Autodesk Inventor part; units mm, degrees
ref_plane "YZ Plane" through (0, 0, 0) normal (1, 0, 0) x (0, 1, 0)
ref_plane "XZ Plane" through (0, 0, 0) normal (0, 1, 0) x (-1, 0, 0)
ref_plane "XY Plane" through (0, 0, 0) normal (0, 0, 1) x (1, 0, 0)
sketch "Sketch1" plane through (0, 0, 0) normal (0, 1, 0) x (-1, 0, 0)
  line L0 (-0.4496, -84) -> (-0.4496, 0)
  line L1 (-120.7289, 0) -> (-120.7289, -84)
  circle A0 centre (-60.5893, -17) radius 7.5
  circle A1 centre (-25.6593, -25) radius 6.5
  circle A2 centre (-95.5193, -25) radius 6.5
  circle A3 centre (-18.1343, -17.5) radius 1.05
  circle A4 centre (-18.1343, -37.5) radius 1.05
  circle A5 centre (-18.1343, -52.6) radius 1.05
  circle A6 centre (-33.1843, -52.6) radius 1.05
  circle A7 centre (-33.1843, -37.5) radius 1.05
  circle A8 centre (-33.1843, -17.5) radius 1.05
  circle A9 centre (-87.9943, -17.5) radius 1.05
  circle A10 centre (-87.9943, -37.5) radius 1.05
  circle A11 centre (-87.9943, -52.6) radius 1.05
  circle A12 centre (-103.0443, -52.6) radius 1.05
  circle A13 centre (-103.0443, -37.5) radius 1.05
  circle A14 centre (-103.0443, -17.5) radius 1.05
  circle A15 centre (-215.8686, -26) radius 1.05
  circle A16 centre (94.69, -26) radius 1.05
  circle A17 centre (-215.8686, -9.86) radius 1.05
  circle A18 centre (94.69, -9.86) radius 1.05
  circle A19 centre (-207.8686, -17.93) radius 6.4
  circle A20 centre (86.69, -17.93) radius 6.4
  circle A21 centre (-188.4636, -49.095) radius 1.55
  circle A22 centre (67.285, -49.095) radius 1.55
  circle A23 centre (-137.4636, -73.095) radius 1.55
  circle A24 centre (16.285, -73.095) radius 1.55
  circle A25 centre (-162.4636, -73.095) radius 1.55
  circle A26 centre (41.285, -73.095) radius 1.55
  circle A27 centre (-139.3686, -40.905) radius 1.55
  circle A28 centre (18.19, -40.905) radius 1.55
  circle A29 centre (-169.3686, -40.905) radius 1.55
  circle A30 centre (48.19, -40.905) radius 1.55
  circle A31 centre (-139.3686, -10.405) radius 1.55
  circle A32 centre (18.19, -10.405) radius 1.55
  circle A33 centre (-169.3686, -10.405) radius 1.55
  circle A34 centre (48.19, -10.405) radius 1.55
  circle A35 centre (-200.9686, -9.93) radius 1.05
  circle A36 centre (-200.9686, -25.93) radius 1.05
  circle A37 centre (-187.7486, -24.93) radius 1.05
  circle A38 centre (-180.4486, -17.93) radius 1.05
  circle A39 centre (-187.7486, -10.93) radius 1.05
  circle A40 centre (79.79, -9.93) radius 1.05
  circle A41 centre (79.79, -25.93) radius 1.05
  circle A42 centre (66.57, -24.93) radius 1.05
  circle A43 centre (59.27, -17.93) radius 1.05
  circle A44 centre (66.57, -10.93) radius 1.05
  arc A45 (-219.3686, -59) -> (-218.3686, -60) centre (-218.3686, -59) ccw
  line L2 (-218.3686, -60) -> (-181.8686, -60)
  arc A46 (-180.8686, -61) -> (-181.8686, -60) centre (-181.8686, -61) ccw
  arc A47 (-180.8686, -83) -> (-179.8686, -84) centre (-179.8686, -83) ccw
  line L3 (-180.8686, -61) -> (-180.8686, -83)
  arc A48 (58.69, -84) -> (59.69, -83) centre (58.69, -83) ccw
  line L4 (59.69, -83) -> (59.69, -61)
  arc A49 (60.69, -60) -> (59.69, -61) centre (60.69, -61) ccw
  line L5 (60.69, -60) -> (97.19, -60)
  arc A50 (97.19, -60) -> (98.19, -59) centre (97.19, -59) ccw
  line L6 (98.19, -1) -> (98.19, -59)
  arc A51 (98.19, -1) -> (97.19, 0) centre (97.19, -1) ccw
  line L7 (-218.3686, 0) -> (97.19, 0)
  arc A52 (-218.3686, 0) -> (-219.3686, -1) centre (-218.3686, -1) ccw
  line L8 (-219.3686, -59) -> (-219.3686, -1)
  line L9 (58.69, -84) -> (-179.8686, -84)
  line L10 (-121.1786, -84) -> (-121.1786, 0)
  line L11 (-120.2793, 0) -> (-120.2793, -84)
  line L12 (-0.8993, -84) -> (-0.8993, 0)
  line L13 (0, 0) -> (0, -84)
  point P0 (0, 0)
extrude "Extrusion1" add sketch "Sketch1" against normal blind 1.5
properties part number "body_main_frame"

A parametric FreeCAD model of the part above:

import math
import FreeCAD as App
import Part
import Sketcher

doc = App.newDocument("Part")
params = doc.addObject("Spreadsheet::Sheet", "Params")
for row, (alias, value) in enumerate([
    ("sketch1_diameter", "13 mm"),
    ("sketch1_diameter2", "15 mm"),
    ("sketch1_radius", "1 mm"),
    ("sketch1_diameter3", "2.1 mm"),
    ("sketch1_diameter4", "3.1 mm"),
    ("pad1_length", "1.5 mm"),
], start=1):
    params.set(f"A{row}", alias)
    params.set(f"B{row}", "=" + value)
    params.setAlias(f"B{row}", alias)

body = doc.addObject("PartDesign::Body", "Body")

# Sketch on XZ plane
sketch1 = body.newObject("Sketcher::SketchObject", "Sketch")
sketch1.AttachmentSupport = (doc.getObject("XZ_Plane"), [""])
sketch1.MapMode = "FlatFace"
sketch1.addGeometry([
    Part.ArcOfCircle(Part.Circle(App.Vector(-58.7, -83, 0), App.Vector(0, 0, 1), 1), math.radians(180), math.radians(270)),  # 0
    Part.LineSegment(App.Vector(-59.7, -83, 0), App.Vector(-59.7, -61, 0)),  # 1
    Part.ArcOfCircle(Part.Circle(App.Vector(-60.7, -61, 0), App.Vector(0, 0, 1), 1), math.radians(0), math.radians(90)),  # 2
    Part.LineSegment(App.Vector(-60.7, -60, 0), App.Vector(-97.2, -60, 0)),  # 3
    Part.ArcOfCircle(Part.Circle(App.Vector(-97.2, -59, 0), App.Vector(0, 0, 1), 1), math.radians(180), math.radians(270)),  # 4
    Part.LineSegment(App.Vector(-98.2, -59, 0), App.Vector(-98.2, -1, 0)),  # 5
    Part.ArcOfCircle(Part.Circle(App.Vector(-97.2, -1, 0), App.Vector(0, 0, 1), 1), math.radians(90), math.radians(180)),  # 6
    Part.LineSegment(App.Vector(-97.2, 0, 0), App.Vector(218.4, 0, 0)),  # 7
    Part.ArcOfCircle(Part.Circle(App.Vector(218.4, -1, 0), App.Vector(0, 0, 1), 1), math.radians(0), math.radians(90)),  # 8
    Part.LineSegment(App.Vector(219.4, -1, 0), App.Vector(219.4, -59, 0)),  # 9
    Part.ArcOfCircle(Part.Circle(App.Vector(218.4, -59, 0), App.Vector(0, 0, 1), 1), math.radians(-90), math.radians(0)),  # 10
    Part.LineSegment(App.Vector(218.4, -60, 0), App.Vector(181.9, -60, 0)),  # 11
    Part.ArcOfCircle(Part.Circle(App.Vector(181.9, -61, 0), App.Vector(0, 0, 1), 1), math.radians(90), math.radians(180)),  # 12
    Part.LineSegment(App.Vector(180.9, -61, 0), App.Vector(180.9, -83, 0)),  # 13
    Part.ArcOfCircle(Part.Circle(App.Vector(179.9, -83, 0), App.Vector(0, 0, 1), 1), math.radians(-90), math.radians(0)),  # 14
    Part.LineSegment(App.Vector(179.9, -84, 0), App.Vector(-58.7, -84, 0)),  # 15
    Part.Circle(App.Vector(18.1, -17.5, 0), App.Vector(0, 0, 1), 1.1),  # 16
    Part.Circle(App.Vector(103, -52.6, 0), App.Vector(0, 0, 1), 1.1),  # 17
    Part.Circle(App.Vector(88, -52.6, 0), App.Vector(0, 0, 1), 1.1),  # 18
    Part.Circle(App.Vector(33.2, -52.6, 0), App.Vector(0, 0, 1), 1.1),  # 19
    Part.Circle(App.Vector(18.1, -52.6, 0), App.Vector(0, 0, 1), 1.1),  # 20
    Part.Circle(App.Vector(103, -37.5, 0), App.Vector(0, 0, 1), 1.1),  # 21
    Part.Circle(App.Vector(88, -37.5, 0), App.Vector(0, 0, 1), 1.1),  # 22
    Part.Circle(App.Vector(95.5, -25, 0), App.Vector(0, 0, 1), 6.5),  # 23
    Part.Circle(App.Vector(103, -17.5, 0), App.Vector(0, 0, 1), 1.1),  # 24
    Part.Circle(App.Vector(88, -17.5, 0), App.Vector(0, 0, 1), 1.1),  # 25
    Part.Circle(App.Vector(33.2, -37.5, 0), App.Vector(0, 0, 1), 1.1),  # 26
    Part.Circle(App.Vector(18.1, -37.5, 0), App.Vector(0, 0, 1), 1.1),  # 27
    Part.Circle(App.Vector(25.7, -25, 0), App.Vector(0, 0, 1), 6.5),  # 28
    Part.Circle(App.Vector(60.6, -17, 0), App.Vector(0, 0, 1), 7.5),  # 29
    Part.Circle(App.Vector(33.2, -17.5, 0), App.Vector(0, 0, 1), 1.1),  # 30
    Part.Circle(App.Vector(-94.7, -9.9, 0), App.Vector(0, 0, 1), 1.1),  # 31
    Part.Circle(App.Vector(-16.3, -73.1, 0), App.Vector(0, 0, 1), 1.6),  # 32
    Part.Circle(App.Vector(-41.3, -73.1, 0), App.Vector(0, 0, 1), 1.6),  # 33
    Part.Circle(App.Vector(-67.3, -49.1, 0), App.Vector(0, 0, 1), 1.6),  # 34
    Part.Circle(App.Vector(-18.2, -40.9, 0), App.Vector(0, 0, 1), 1.6),  # 35
    Part.Circle(App.Vector(-48.2, -40.9, 0), App.Vector(0, 0, 1), 1.6),  # 36
    Part.Circle(App.Vector(-66.6, -24.9, 0), App.Vector(0, 0, 1), 1.1),  # 37
    Part.Circle(App.Vector(-79.8, -25.9, 0), App.Vector(0, 0, 1), 1.1),  # 38
    Part.Circle(App.Vector(-94.7, -26, 0), App.Vector(0, 0, 1), 1.1),  # 39
    Part.Circle(App.Vector(-18.2, -10.4, 0), App.Vector(0, 0, 1), 1.6),  # 40
    Part.Circle(App.Vector(-59.3, -17.9, 0), App.Vector(0, 0, 1), 1.1),  # 41
    Part.Circle(App.Vector(-86.7, -17.9, 0), App.Vector(0, 0, 1), 6.4),  # 42
    Part.Circle(App.Vector(-66.6, -10.9, 0), App.Vector(0, 0, 1), 1.1),  # 43
    Part.Circle(App.Vector(-48.2, -10.4, 0), App.Vector(0, 0, 1), 1.6),  # 44
    Part.Circle(App.Vector(-79.8, -9.9, 0), App.Vector(0, 0, 1), 1.1),  # 45
    Part.Circle(App.Vector(139.4, -10.4, 0), App.Vector(0, 0, 1), 1.6),  # 46
    Part.Circle(App.Vector(162.5, -73.1, 0), App.Vector(0, 0, 1), 1.6),  # 47
    Part.Circle(App.Vector(137.5, -73.1, 0), App.Vector(0, 0, 1), 1.6),  # 48
    Part.Circle(App.Vector(188.5, -49.1, 0), App.Vector(0, 0, 1), 1.6),  # 49
    Part.Circle(App.Vector(169.4, -40.9, 0), App.Vector(0, 0, 1), 1.6),  # 50
    Part.Circle(App.Vector(215.9, -26, 0), App.Vector(0, 0, 1), 1.1),  # 51
    Part.Circle(App.Vector(201, -25.9, 0), App.Vector(0, 0, 1), 1.1),  # 52
    Part.Circle(App.Vector(187.7, -24.9, 0), App.Vector(0, 0, 1), 1.1),  # 53
    Part.Circle(App.Vector(139.4, -40.9, 0), App.Vector(0, 0, 1), 1.6),  # 54
    Part.Circle(App.Vector(207.9, -17.9, 0), App.Vector(0, 0, 1), 6.4),  # 55
    Part.Circle(App.Vector(180.4, -17.9, 0), App.Vector(0, 0, 1), 1.1),  # 56
    Part.Circle(App.Vector(187.7, -10.9, 0), App.Vector(0, 0, 1), 1.1),  # 57
    Part.Circle(App.Vector(215.9, -9.9, 0), App.Vector(0, 0, 1), 1.1),  # 58
    Part.Circle(App.Vector(201, -9.9, 0), App.Vector(0, 0, 1), 1.1),  # 59
    Part.Circle(App.Vector(169.4, -10.4, 0), App.Vector(0, 0, 1), 1.6),  # 60
], False)
sketch1.addConstraint([
    Sketcher.Constraint("Tangent", 0, 1, 1, 1),
    Sketcher.Constraint("Tangent", 1, 2, 2, 1),
    Sketcher.Constraint("Tangent", 2, 2, 3, 1),
    Sketcher.Constraint("Tangent", 3, 2, 4, 2),
    Sketcher.Constraint("Tangent", 4, 1, 5, 1),
    Sketcher.Constraint("Tangent", 5, 2, 6, 2),
    Sketcher.Constraint("Tangent", 6, 1, 7, 1),
    Sketcher.Constraint("Tangent", 7, 2, 8, 2),
    Sketcher.Constraint("Tangent", 8, 1, 9, 1),
    Sketcher.Constraint("Tangent", 9, 2, 10, 2),
    Sketcher.Constraint("Tangent", 10, 1, 11, 1),
    Sketcher.Constraint("Tangent", 11, 2, 12, 1),
    Sketcher.Constraint("Tangent", 12, 2, 13, 1),
    Sketcher.Constraint("Tangent", 13, 2, 14, 2),
    Sketcher.Constraint("Tangent", 14, 1, 15, 1),
    Sketcher.Constraint("Tangent", 15, 2, 0, 2),
    Sketcher.Constraint("Vertical", 1),
    Sketcher.Constraint("Horizontal", 3),
    Sketcher.Constraint("Vertical", 5),
    Sketcher.Constraint("Horizontal", 7),
    Sketcher.Constraint("Vertical", 9),
    Sketcher.Constraint("Horizontal", 11),
    Sketcher.Constraint("Vertical", 13),
    Sketcher.Constraint("Horizontal", 15),
    Sketcher.Constraint("Equal", 0, 2),
    Sketcher.Constraint("Equal", 2, 4),
    Sketcher.Constraint("Equal", 4, 6),
    Sketcher.Constraint("Equal", 6, 8),
    Sketcher.Constraint("Equal", 8, 10),
    Sketcher.Constraint("Equal", 10, 12),
    Sketcher.Constraint("Equal", 12, 14),
    Sketcher.Constraint("Equal", 16, 17),
    Sketcher.Constraint("Equal", 17, 18),
    Sketcher.Constraint("Equal", 18, 19),
    Sketcher.Constraint("Equal", 19, 20),
    Sketcher.Constraint("Equal", 20, 21),
    Sketcher.Constraint("Equal", 21, 22),
    Sketcher.Constraint("Equal", 22, 24),
    Sketcher.Constraint("Equal", 24, 25),
    Sketcher.Constraint("Equal", 25, 26),
    Sketcher.Constraint("Equal", 26, 27),
    Sketcher.Constraint("Equal", 23, 28),
    Sketcher.Constraint("Equal", 27, 30),
    Sketcher.Constraint("Equal", 30, 31),
    Sketcher.Constraint("Equal", 32, 33),
    Sketcher.Constraint("Equal", 33, 34),
    Sketcher.Constraint("Equal", 34, 35),
    Sketcher.Constraint("Equal", 35, 36),
    Sketcher.Constraint("Equal", 31, 37),
    Sketcher.Constraint("Equal", 37, 38),
    Sketcher.Constraint("Equal", 38, 39),
    Sketcher.Constraint("Equal", 36, 40),
    Sketcher.Constraint("Equal", 39, 41),
    Sketcher.Constraint("Equal", 41, 43),
    Sketcher.Constraint("Equal", 40, 44),
    Sketcher.Constraint("Equal", 43, 45),
    Sketcher.Constraint("Equal", 44, 46),
    Sketcher.Constraint("Equal", 46, 47),
    Sketcher.Constraint("Equal", 47, 48),
    Sketcher.Constraint("Equal", 48, 49),
    Sketcher.Constraint("Equal", 49, 50),
    Sketcher.Constraint("Equal", 45, 51),
    Sketcher.Constraint("Equal", 51, 52),
    Sketcher.Constraint("Equal", 52, 53),
    Sketcher.Constraint("Equal", 50, 54),
    Sketcher.Constraint("Equal", 42, 55),
    Sketcher.Constraint("Equal", 53, 56),
    Sketcher.Constraint("Equal", 56, 57),
    Sketcher.Constraint("Equal", 57, 58),
    Sketcher.Constraint("Equal", 58, 59),
    Sketcher.Constraint("Equal", 54, 60),
    Sketcher.Constraint("PointOnObject", 6, 1, -1),
    Sketcher.Constraint("Horizontal", 4, 3, 10, 3),
    Sketcher.Constraint("Horizontal", 17, 3, 18, 3),
    Sketcher.Constraint("Horizontal", 18, 3, 19, 3),
    Sketcher.Constraint("Horizontal", 19, 3, 20, 3),
    Sketcher.Constraint("Horizontal", 21, 3, 22, 3),
    Sketcher.Constraint("Horizontal", 16, 3, 24, 3),
    Sketcher.Constraint("Horizontal", 24, 3, 25, 3),
    Sketcher.Constraint("Horizontal", 22, 3, 26, 3),
    Sketcher.Constraint("Horizontal", 26, 3, 27, 3),
    Sketcher.Constraint("Horizontal", 23, 3, 28, 3),
    Sketcher.Constraint("Horizontal", 25, 3, 30, 3),
    Sketcher.Constraint("Horizontal", 32, 3, 33, 3),
    Sketcher.Constraint("Horizontal", 35, 3, 36, 3),
    Sketcher.Constraint("Horizontal", 41, 3, 42, 3),
    Sketcher.Constraint("Horizontal", 40, 3, 44, 3),
    Sketcher.Constraint("Horizontal", 44, 3, 46, 3),
    Sketcher.Constraint("Horizontal", 33, 3, 47, 3),
    Sketcher.Constraint("Horizontal", 47, 3, 48, 3),
    Sketcher.Constraint("Horizontal", 34, 3, 49, 3),
    Sketcher.Constraint("Horizontal", 36, 3, 50, 3),
    Sketcher.Constraint("Horizontal", 39, 3, 51, 3),
    Sketcher.Constraint("Horizontal", 38, 3, 52, 3),
    Sketcher.Constraint("Horizontal", 37, 3, 53, 3),
    Sketcher.Constraint("Horizontal", 50, 3, 54, 3),
    Sketcher.Constraint("Horizontal", 42, 3, 55, 3),
    Sketcher.Constraint("Horizontal", 55, 3, 56, 3),
    Sketcher.Constraint("Horizontal", 43, 3, 57, 3),
    Sketcher.Constraint("Horizontal", 31, 3, 58, 3),
    Sketcher.Constraint("Horizontal", 45, 3, 59, 3),
    Sketcher.Constraint("Horizontal", 46, 3, 60, 3),
    Sketcher.Constraint("Vertical", 16, 3, 20, 3),
    Sketcher.Constraint("Vertical", 17, 3, 21, 3),
    Sketcher.Constraint("Vertical", 18, 3, 22, 3),
    Sketcher.Constraint("Vertical", 21, 3, 24, 3),
    Sketcher.Constraint("Vertical", 22, 3, 25, 3),
    Sketcher.Constraint("Vertical", 19, 3, 26, 3),
    Sketcher.Constraint("Vertical", 20, 3, 27, 3),
    Sketcher.Constraint("Vertical", 26, 3, 30, 3),
    Sketcher.Constraint("Vertical", 31, 3, 39, 3),
    Sketcher.Constraint("Vertical", 35, 3, 40, 3),
    Sketcher.Constraint("Vertical", 37, 3, 43, 3),
    Sketcher.Constraint("Vertical", 36, 3, 44, 3),
    Sketcher.Constraint("Vertical", 38, 3, 45, 3),
    Sketcher.Constraint("Vertical", 46, 3, 54, 3),
    Sketcher.Constraint("Vertical", 53, 3, 57, 3),
    Sketcher.Constraint("Vertical", 51, 3, 58, 3),
    Sketcher.Constraint("Vertical", 52, 3, 59, 3),
    Sketcher.Constraint("Vertical", 50, 3, 60, 3),
    Sketcher.Constraint("Equal", 3, 11),
    Sketcher.Constraint("Diameter", 23, 13.0),
    Sketcher.Constraint("Diameter", 29, 15.0),
    Sketcher.Constraint("Radius", 0, 1.0),
    Sketcher.Constraint("Diameter", 16, 2.1),
    Sketcher.Constraint("Diameter", 32, 3.1),
    Sketcher.Constraint("Diameter", 42, 12.8),
    Sketcher.Constraint("DistanceY", 1, 1, 1, 2, 22.0),
    Sketcher.Constraint("DistanceY", 5, 1, 5, 2, 58.0),
    Sketcher.Constraint("DistanceX", 3, 2, 3, 1, 36.5),
    Sketcher.Constraint("DistanceY", 23, 3, -1, 1, 25.0),
    Sketcher.Constraint("DistanceY", 29, 3, -1, 1, 17.0),
    Sketcher.Constraint("DistanceY", 39, 3, -1, 1, 26.0),
    Sketcher.Constraint("DistanceY", 16, 3, -1, 1, 17.5),
    Sketcher.Constraint("DistanceY", 17, 3, -1, 1, 52.6),
    Sketcher.Constraint("DistanceY", 21, 3, -1, 1, 37.5),
    Sketcher.Constraint("DistanceX", 0, 3, -1, 1, 58.69),
    Sketcher.Constraint("DistanceX", 31, 3, -1, 1, 94.69),
    Sketcher.Constraint("DistanceY", 31, 3, -1, 1, 9.86),
    Sketcher.Constraint("DistanceX", 35, 3, -1, 1, 18.19),
    Sketcher.Constraint("DistanceX", 36, 3, -1, 1, 48.19),
    Sketcher.Constraint("DistanceX", 37, 3, -1, 1, 66.57),
    Sketcher.Constraint("DistanceY", 37, 3, -1, 1, 24.93),
    Sketcher.Constraint("DistanceX", 38, 3, -1, 1, 79.79),
    Sketcher.Constraint("DistanceY", 38, 3, -1, 1, 25.93),
    Sketcher.Constraint("DistanceX", 41, 3, -1, 1, 59.27),
    Sketcher.Constraint("DistanceY", 41, 3, -1, 1, 17.93),
    Sketcher.Constraint("DistanceX", 42, 3, -1, 1, 86.69),
    Sketcher.Constraint("DistanceY", 43, 3, -1, 1, 10.93),
    Sketcher.Constraint("DistanceY", 45, 3, -1, 1, 9.93),
    Sketcher.Constraint("DistanceX", 7, 1, 7, 2, 315.5586),
    Sketcher.Constraint("DistanceX", 32, 3, -1, 1, 16.285),
    Sketcher.Constraint("DistanceY", 32, 3, -1, 1, 73.095),
    Sketcher.Constraint("DistanceX", 33, 3, -1, 1, 41.285),
    Sketcher.Constraint("DistanceX", 34, 3, -1, 1, 67.285),
    Sketcher.Constraint("DistanceY", 34, 3, -1, 1, 49.095),
    Sketcher.Constraint("DistanceY", 35, 3, -1, 1, 40.905),
    Sketcher.Constraint("DistanceY", 40, 3, -1, 1, 10.405),
    Sketcher.Constraint("DistanceX", -1, 1, 16, 3, 18.1343),
    Sketcher.Constraint("DistanceX", -1, 1, 17, 3, 103.0443),
    Sketcher.Constraint("DistanceX", -1, 1, 18, 3, 87.9943),
    Sketcher.Constraint("DistanceX", -1, 1, 19, 3, 33.1843),
    Sketcher.Constraint("DistanceX", -1, 1, 23, 3, 95.5193),
    Sketcher.Constraint("DistanceX", -1, 1, 28, 3, 25.6593),
    Sketcher.Constraint("DistanceX", -1, 1, 29, 3, 60.5893),
    Sketcher.Constraint("DistanceX", -1, 1, 46, 3, 139.3686),
    Sketcher.Constraint("DistanceX", -1, 1, 47, 3, 162.4636),
    Sketcher.Constraint("DistanceX", -1, 1, 48, 3, 137.4636),
    Sketcher.Constraint("DistanceX", -1, 1, 49, 3, 188.4636),
    Sketcher.Constraint("DistanceX", -1, 1, 50, 3, 169.3686),
    Sketcher.Constraint("DistanceX", -1, 1, 51, 3, 215.8686),
    Sketcher.Constraint("DistanceX", -1, 1, 52, 3, 200.9686),
    Sketcher.Constraint("DistanceX", -1, 1, 53, 3, 187.7486),
    Sketcher.Constraint("DistanceX", -1, 1, 55, 3, 207.8686),
    Sketcher.Constraint("DistanceX", -1, 1, 56, 3, 180.4486),
])
sketch1.setExpression("Constraints[121]", "Params.sketch1_diameter")
sketch1.setExpression("Constraints[122]", "Params.sketch1_diameter2")
sketch1.setExpression("Constraints[123]", "Params.sketch1_radius")
sketch1.setExpression("Constraints[124]", "Params.sketch1_diameter3")
sketch1.setExpression("Constraints[125]", "Params.sketch1_diameter4")
pad1 = body.newObject("PartDesign::Pad", "Pad")
pad1.Profile = sketch1
pad1.setExpression("Length", "Params.pad1_length")

doc.recompute()
